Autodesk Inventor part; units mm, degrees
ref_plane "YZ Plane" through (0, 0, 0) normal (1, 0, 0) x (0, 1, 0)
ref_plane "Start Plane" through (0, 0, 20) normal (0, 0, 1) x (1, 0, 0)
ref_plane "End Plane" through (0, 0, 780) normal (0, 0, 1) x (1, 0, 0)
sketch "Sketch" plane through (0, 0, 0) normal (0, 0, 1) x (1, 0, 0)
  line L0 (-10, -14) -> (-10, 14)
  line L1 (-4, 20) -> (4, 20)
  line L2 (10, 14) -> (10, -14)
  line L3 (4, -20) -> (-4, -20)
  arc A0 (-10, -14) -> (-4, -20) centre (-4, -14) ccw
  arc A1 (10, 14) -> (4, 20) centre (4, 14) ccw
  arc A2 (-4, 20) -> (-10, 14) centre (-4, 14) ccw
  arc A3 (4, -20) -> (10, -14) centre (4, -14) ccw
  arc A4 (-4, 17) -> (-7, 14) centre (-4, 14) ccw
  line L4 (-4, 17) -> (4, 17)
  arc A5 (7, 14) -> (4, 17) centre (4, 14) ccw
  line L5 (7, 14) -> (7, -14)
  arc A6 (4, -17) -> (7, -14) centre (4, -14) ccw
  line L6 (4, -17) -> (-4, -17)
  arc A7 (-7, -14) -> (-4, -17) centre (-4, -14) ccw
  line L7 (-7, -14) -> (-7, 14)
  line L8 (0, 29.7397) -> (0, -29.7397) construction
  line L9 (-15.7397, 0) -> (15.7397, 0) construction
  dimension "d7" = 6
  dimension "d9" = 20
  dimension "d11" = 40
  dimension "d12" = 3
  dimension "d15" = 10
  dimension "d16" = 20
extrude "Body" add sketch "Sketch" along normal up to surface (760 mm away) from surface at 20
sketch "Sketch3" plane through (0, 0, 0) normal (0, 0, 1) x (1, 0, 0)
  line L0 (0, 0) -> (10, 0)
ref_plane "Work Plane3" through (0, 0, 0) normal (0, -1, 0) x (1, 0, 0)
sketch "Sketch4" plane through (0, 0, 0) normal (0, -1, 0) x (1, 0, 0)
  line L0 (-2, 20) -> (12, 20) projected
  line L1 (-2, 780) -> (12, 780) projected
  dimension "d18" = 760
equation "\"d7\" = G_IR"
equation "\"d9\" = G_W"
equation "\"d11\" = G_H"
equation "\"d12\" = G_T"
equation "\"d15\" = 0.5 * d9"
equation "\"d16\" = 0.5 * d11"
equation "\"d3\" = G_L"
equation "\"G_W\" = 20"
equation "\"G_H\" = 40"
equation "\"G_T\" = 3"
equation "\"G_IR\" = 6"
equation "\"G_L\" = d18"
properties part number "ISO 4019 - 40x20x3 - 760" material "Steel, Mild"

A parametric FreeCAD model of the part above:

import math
import FreeCAD as App
import Part
import Sketcher
from FreeCAD import Vector
Q = App.Units.Quantity

doc = App.newDocument("Part")
body = doc.addObject("PartDesign::Body", "Body")

# Sketch on XY plane
sketch1 = body.newObject("Sketcher::SketchObject", "Sketch")
sketch1.AttachmentSupport = (doc.getObject("XY_Plane"), [""])
sketch1.MapMode = "FlatFace"
sketch1.AttachmentOffset = App.Placement(Vector(0, 0, 20), App.Rotation())
sketch1.addGeometry([
    Part.LineSegment(Vector(-10, 14, 0), Vector(-10, -14, 0)),  # 0
    Part.ArcOfCircle(Part.Circle(Vector(-4, -14, 0), Vector(0, 0, 1), 6), math.radians(180), math.radians(270)),  # 1
    Part.LineSegment(Vector(-4, -20, 0), Vector(4, -20, 0)),  # 2
    Part.ArcOfCircle(Part.Circle(Vector(4, -14, 0), Vector(0, 0, 1), 6), math.radians(-90), math.radians(0)),  # 3
    Part.LineSegment(Vector(10, -14, 0), Vector(10, 14, 0)),  # 4
    Part.ArcOfCircle(Part.Circle(Vector(4, 14, 0), Vector(0, 0, 1), 6), math.radians(0), math.radians(90)),  # 5
    Part.LineSegment(Vector(4, 20, 0), Vector(-4, 20, 0)),  # 6
    Part.ArcOfCircle(Part.Circle(Vector(-4, 14, 0), Vector(0, 0, 1), 6), math.radians(90), math.radians(180)),  # 7
    Part.ArcOfCircle(Part.Circle(Vector(-4, 14, 0), Vector(0, 0, 1), 3), math.radians(90), math.radians(180)),  # 8
    Part.LineSegment(Vector(-4, 17, 0), Vector(4, 17, 0)),  # 9
    Part.ArcOfCircle(Part.Circle(Vector(4, 14, 0), Vector(0, 0, 1), 3), math.radians(0), math.radians(90)),  # 10
    Part.LineSegment(Vector(7, 14, 0), Vector(7, -14, 0)),  # 11
    Part.ArcOfCircle(Part.Circle(Vector(4, -14, 0), Vector(0, 0, 1), 3), math.radians(-90), math.radians(0)),  # 12
    Part.LineSegment(Vector(4, -17, 0), Vector(-4, -17, 0)),  # 13
    Part.ArcOfCircle(Part.Circle(Vector(-4, -14, 0), Vector(0, 0, 1), 3), math.radians(180), math.radians(270)),  # 14
    Part.LineSegment(Vector(-7, -14, 0), Vector(-7, 14, 0)),  # 15
], False)
sketch1.addConstraint([
    Sketcher.Constraint("Tangent", 0, 2, 1, 1),
    Sketcher.Constraint("Tangent", 1, 2, 2, 1),
    Sketcher.Constraint("Tangent", 2, 2, 3, 1),
    Sketcher.Constraint("Tangent", 3, 2, 4, 1),
    Sketcher.Constraint("Tangent", 4, 2, 5, 1),
    Sketcher.Constraint("Tangent", 5, 2, 6, 1),
    Sketcher.Constraint("Tangent", 6, 2, 7, 1),
    Sketcher.Constraint("Tangent", 7, 2, 0, 1),
    Sketcher.Constraint("Tangent", 8, 1, 9, 1),
    Sketcher.Constraint("Tangent", 9, 2, 10, 2),
    Sketcher.Constraint("Tangent", 10, 1, 11, 1),
    Sketcher.Constraint("Tangent", 11, 2, 12, 2),
    Sketcher.Constraint("Tangent", 12, 1, 13, 1),
    Sketcher.Constraint("Tangent", 13, 2, 14, 2),
    Sketcher.Constraint("Tangent", 14, 1, 15, 1),
    Sketcher.Constraint("Tangent", 15, 2, 8, 2),
    Sketcher.Constraint("Vertical", 0),
    Sketcher.Constraint("Horizontal", 2),
    Sketcher.Constraint("Vertical", 4),
    Sketcher.Constraint("Horizontal", 6),
    Sketcher.Constraint("Horizontal", 9),
    Sketcher.Constraint("Vertical", 11),
    Sketcher.Constraint("Horizontal", 13),
    Sketcher.Constraint("Vertical", 15),
    Sketcher.Constraint("Coincident", 8, 3, 7, 3),
    Sketcher.Constraint("Coincident", 10, 3, 5, 3),
    Sketcher.Constraint("Coincident", 12, 3, 3, 3),
    Sketcher.Constraint("Equal", 1, 3),
    Sketcher.Constraint("Equal", 3, 5),
    Sketcher.Constraint("Equal", 5, 7),
    Sketcher.Constraint("Equal", 12, 14),
    Sketcher.Constraint("Symmetric", 1, 3, 5, 3, -1, 1),
    Sketcher.Constraint("Radius", 1, Q("6 mm")),
    Sketcher.Constraint("Radius", 8, Q("3 mm")),
    Sketcher.Constraint("DistanceX", 0, 2, -1, 1, Q("10 mm")),
    Sketcher.Constraint("DistanceY", 1, 2, -1, 1, Q("20 mm")),
])
pad1 = body.newObject("PartDesign::Pad", "Pad")
pad1.Profile = sketch1
pad1.Length = 760

doc.recompute()
